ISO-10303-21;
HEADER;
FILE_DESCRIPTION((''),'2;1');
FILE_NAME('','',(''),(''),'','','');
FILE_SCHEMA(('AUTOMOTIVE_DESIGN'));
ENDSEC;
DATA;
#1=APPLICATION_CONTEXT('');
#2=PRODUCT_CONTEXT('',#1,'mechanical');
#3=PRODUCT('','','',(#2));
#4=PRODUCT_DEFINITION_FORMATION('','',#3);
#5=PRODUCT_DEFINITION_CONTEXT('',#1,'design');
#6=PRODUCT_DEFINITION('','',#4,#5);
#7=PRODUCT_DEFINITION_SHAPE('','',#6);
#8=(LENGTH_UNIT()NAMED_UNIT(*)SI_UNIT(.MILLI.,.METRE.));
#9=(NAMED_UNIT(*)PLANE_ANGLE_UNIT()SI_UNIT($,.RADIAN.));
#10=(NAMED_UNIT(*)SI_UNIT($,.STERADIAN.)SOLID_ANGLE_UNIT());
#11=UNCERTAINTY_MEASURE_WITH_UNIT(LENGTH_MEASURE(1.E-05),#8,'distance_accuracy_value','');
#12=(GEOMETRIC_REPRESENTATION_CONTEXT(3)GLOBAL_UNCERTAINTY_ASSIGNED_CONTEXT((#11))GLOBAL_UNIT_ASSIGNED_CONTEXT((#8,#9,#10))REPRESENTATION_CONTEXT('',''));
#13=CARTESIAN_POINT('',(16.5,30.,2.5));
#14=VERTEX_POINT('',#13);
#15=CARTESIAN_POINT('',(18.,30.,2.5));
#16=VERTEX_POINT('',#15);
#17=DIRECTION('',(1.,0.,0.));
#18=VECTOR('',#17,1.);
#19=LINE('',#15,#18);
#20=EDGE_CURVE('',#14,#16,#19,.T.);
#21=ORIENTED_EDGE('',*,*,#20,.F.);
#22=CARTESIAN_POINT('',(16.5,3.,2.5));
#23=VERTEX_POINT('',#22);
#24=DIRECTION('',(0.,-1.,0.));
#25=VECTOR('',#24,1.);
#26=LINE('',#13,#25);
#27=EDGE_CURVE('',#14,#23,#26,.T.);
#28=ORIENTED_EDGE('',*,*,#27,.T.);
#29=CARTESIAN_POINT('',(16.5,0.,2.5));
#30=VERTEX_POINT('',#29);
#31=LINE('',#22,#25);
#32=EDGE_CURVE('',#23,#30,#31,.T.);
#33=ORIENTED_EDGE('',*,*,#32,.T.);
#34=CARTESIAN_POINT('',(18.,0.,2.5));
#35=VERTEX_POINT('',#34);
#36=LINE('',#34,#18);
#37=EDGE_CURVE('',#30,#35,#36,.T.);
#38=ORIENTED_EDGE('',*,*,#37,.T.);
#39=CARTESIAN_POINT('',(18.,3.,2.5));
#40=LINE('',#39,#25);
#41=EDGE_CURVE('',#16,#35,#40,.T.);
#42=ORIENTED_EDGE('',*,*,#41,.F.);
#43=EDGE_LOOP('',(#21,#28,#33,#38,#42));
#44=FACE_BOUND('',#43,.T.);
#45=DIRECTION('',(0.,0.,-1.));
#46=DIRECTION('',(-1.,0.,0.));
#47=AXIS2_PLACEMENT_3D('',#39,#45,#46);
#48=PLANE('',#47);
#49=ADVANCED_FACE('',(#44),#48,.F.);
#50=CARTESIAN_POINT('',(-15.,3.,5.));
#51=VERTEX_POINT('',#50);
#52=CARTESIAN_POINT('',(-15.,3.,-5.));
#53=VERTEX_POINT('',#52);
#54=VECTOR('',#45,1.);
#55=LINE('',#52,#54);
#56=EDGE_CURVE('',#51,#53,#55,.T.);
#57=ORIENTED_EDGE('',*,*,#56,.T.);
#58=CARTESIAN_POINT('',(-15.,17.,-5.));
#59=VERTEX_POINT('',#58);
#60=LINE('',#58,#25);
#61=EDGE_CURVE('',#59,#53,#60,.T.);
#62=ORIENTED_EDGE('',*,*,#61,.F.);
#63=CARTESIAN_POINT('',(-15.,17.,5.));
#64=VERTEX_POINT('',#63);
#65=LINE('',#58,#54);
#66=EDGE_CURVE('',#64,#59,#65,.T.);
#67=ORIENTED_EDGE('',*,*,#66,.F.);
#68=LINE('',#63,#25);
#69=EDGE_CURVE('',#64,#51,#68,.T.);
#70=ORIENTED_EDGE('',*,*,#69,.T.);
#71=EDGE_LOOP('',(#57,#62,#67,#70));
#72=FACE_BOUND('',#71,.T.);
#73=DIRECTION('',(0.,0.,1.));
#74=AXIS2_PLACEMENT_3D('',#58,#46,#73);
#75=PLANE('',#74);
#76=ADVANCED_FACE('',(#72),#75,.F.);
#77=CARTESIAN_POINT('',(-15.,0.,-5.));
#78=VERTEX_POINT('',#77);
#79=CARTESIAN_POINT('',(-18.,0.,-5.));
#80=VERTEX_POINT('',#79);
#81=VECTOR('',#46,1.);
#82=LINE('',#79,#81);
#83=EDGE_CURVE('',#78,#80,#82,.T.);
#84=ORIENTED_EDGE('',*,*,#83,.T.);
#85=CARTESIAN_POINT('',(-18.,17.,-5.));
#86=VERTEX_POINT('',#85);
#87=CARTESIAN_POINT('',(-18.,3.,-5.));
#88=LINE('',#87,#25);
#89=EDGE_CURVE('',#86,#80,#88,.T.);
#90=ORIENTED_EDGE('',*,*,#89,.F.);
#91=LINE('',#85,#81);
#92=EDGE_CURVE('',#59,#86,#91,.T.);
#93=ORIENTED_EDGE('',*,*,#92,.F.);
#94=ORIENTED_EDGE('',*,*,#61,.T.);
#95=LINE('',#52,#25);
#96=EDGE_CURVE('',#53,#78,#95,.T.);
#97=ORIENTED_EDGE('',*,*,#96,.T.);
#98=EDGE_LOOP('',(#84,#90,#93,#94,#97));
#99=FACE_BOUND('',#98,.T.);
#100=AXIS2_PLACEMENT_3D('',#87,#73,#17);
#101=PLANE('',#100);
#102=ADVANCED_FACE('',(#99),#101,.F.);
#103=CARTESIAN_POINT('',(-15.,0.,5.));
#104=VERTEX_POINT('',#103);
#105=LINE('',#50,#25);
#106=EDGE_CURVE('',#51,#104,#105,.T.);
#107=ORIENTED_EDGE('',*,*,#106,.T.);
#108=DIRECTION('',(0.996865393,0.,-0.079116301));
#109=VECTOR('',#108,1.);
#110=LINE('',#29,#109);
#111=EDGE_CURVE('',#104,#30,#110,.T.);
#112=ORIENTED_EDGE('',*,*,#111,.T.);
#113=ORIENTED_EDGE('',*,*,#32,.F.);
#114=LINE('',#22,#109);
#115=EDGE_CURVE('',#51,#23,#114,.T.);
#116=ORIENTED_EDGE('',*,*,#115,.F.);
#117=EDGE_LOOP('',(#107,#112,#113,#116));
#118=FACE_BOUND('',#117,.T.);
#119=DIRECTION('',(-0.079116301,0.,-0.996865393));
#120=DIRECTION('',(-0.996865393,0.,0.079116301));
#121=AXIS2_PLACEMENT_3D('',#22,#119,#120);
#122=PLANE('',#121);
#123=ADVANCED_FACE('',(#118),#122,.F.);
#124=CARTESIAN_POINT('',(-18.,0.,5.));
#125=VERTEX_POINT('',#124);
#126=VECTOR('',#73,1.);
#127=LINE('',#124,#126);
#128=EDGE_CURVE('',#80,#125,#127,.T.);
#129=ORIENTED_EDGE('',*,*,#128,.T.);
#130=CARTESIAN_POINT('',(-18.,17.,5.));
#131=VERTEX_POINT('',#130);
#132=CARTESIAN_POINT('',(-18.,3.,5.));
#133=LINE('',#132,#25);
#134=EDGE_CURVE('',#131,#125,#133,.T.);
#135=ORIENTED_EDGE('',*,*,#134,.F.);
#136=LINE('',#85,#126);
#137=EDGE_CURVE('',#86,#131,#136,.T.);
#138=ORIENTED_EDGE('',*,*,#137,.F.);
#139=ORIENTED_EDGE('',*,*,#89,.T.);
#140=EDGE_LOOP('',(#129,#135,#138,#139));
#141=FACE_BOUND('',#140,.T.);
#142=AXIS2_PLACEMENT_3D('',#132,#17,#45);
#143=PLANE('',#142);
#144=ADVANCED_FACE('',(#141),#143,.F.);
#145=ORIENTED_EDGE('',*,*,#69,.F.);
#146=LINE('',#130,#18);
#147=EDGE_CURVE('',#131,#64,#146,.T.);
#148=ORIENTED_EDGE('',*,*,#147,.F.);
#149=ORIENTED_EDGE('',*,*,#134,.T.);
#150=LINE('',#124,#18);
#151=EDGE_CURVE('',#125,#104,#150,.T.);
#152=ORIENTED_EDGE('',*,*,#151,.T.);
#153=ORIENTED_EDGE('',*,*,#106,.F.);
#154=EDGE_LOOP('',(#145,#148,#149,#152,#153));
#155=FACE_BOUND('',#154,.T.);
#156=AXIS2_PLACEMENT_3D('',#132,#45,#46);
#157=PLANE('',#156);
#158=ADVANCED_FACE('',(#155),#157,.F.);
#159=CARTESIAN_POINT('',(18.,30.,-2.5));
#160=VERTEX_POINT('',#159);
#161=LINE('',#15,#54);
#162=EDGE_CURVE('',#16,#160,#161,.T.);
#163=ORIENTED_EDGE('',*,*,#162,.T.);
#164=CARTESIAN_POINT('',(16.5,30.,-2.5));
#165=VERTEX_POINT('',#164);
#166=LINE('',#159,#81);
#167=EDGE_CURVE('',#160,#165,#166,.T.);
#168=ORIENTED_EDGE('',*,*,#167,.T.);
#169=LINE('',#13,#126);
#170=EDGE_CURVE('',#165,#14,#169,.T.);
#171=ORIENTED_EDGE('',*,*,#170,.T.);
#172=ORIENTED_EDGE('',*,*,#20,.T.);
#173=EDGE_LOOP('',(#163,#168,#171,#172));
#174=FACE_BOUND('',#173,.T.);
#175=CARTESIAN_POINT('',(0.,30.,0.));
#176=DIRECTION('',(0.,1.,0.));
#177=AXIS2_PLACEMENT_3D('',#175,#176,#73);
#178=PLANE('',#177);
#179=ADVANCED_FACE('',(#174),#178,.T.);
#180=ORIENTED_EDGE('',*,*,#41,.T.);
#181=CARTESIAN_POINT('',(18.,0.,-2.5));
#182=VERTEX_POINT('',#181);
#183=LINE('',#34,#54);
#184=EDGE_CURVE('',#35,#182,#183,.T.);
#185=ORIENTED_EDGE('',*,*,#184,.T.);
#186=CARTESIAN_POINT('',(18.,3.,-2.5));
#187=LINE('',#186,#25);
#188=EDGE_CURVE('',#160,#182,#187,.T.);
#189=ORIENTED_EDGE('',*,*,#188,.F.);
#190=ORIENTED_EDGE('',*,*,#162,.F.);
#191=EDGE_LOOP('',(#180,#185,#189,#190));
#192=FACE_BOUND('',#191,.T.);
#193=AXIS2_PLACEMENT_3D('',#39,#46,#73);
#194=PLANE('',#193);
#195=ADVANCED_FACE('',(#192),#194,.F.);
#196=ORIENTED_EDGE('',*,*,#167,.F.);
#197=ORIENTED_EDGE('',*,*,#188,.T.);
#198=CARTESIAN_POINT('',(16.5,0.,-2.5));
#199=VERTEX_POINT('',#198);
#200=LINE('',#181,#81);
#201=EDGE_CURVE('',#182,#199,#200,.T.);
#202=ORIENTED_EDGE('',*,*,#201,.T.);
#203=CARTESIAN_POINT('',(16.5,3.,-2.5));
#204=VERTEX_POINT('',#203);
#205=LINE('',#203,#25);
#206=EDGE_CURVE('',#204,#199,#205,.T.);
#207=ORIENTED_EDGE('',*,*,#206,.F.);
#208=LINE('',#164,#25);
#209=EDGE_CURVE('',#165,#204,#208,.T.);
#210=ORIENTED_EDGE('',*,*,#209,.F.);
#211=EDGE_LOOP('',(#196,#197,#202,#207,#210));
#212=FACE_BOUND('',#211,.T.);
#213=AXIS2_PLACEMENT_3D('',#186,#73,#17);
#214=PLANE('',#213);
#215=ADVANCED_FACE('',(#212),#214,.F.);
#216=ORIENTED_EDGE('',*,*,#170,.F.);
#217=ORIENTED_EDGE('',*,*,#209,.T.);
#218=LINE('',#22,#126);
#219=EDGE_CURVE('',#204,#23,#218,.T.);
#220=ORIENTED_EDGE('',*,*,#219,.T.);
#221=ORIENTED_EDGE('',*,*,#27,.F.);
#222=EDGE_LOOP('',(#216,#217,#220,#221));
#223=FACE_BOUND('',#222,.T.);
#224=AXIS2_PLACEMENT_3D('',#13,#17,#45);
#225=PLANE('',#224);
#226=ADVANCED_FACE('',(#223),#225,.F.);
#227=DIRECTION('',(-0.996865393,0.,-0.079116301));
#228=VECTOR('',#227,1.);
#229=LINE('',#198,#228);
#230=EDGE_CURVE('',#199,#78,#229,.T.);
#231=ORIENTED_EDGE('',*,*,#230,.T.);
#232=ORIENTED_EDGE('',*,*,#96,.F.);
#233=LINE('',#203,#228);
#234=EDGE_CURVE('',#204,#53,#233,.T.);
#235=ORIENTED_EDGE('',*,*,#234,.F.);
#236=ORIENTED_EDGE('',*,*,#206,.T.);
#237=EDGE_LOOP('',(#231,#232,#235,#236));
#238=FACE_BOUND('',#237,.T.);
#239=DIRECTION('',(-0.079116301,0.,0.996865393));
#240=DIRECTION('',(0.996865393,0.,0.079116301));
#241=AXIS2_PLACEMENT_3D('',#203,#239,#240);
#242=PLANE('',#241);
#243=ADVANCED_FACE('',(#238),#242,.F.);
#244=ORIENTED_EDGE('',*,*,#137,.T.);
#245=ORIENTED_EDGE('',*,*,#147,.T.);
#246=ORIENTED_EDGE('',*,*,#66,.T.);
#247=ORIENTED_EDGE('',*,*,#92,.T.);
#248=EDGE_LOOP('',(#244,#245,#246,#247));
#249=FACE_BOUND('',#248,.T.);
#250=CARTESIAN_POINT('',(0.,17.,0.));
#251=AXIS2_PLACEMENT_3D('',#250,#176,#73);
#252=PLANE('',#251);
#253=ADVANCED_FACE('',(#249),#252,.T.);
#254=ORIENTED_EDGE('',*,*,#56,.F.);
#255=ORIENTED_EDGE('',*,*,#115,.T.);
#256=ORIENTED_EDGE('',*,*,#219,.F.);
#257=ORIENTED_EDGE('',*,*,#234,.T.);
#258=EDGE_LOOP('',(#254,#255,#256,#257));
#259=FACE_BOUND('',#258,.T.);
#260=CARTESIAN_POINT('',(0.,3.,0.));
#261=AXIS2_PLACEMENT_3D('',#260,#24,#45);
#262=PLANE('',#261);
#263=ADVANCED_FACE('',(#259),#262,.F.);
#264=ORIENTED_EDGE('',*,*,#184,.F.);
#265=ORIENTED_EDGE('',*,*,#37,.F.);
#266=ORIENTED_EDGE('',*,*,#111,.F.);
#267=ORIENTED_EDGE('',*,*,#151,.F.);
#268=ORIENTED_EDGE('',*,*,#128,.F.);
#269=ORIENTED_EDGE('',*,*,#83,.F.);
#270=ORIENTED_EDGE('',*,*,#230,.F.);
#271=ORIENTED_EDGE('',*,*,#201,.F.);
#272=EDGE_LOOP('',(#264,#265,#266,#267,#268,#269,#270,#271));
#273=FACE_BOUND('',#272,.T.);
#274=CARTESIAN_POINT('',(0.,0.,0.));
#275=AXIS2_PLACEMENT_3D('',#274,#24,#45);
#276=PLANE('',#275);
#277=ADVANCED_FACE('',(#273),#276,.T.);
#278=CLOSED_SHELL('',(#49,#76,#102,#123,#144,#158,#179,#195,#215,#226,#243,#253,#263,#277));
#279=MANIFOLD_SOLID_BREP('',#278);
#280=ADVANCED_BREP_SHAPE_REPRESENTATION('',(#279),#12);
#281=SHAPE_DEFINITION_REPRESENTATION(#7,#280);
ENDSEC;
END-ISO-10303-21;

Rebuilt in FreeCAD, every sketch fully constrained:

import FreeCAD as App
import Part
import Sketcher
Q = App.Units.Quantity


def add_polygon(sketch, points):
    """Adds a closed chain of lines whose ends are joined by coincident constraints."""
    first, n = sketch.GeometryCount, len(points)
    for a, b in zip(points, points[1:] + points[:1]):
        sketch.addGeometry(Part.LineSegment(App.Vector(*a, 0), App.Vector(*b, 0)), False)
    for i in range(n):
        sketch.addConstraint(Sketcher.Constraint("Coincident", first + i, 2, first + (i + 1) % n, 1))

doc = App.newDocument("Part")
body = doc.addObject("PartDesign::Body", "Body")

sketch1 = body.newObject("Sketcher::SketchObject", "Sketch")
sketch1.AttachmentSupport = (doc.getObject("XZ_Plane"), [""])
sketch1.MapMode = "FlatFace"
add_polygon(sketch1, [(18, -2.5), (16.5, -2.5), (-15, -5), (-18, -5), (-18, 5), (-15, 5), (16.5, 2.5), (18, 2.5)])
sketch1.addConstraint([
    Sketcher.Constraint("Horizontal", 0),
    Sketcher.Constraint("Horizontal", 2),
    Sketcher.Constraint("Vertical", 3),
    Sketcher.Constraint("Horizontal", 4),
    Sketcher.Constraint("Horizontal", 6),
    Sketcher.Constraint("Vertical", 7),
    Sketcher.Constraint("Symmetric", 1, 2, 4, 2, -1),
    Sketcher.Constraint("Symmetric", 0, 2, 5, 2, -1),
    Sketcher.Constraint("DistanceX", 2, 2, 2, 1, Q("3 mm")),
    Sketcher.Constraint("DistanceY", 3, 1, 3, 2, Q("10 mm")),
    Sketcher.Constraint("DistanceY", 7, 2, 7, 1, Q("5 mm")),
    Sketcher.Constraint("DistanceX", 0, 2, 0, 1, Q("1.5 mm")),
    Sketcher.Constraint("DistanceX", 1, 2, -1, 1, Q("15 mm")),
    Sketcher.Constraint("DistanceX", -1, 1, 6, 2, Q("18 mm")),
])
pad1 = body.newObject("PartDesign::Pad", "Pad")
pad1.Profile = sketch1
pad1.Length = 3
pad1.Reversed = True

sketch2 = body.newObject("Sketcher::SketchObject", "Sketch001")
sketch2.AttachmentSupport = (doc.getObject("XZ_Plane"), [""])
sketch2.MapMode = "FlatFace"
sketch2.AttachmentOffset = App.Placement(App.Vector(0, 0, -3), App.Rotation())
add_polygon(sketch2, [(-18, -5), (-18, 5), (-15, 5), (-15, -5)])
sketch2.addConstraint([
    Sketcher.Constraint("Vertical", 0),
    Sketcher.Constraint("Horizontal", 1),
    Sketcher.Constraint("Vertical", 2),
    Sketcher.Constraint("Horizontal", 3),
    Sketcher.Constraint("DistanceX", 1, 1, 1, 2, Q("3 mm")),
    Sketcher.Constraint("DistanceY", 0, 1, 0, 2, Q("10 mm")),
    Sketcher.Constraint("DistanceX", 0, 2, -1, 1, Q("18 mm")),
    Sketcher.Constraint("DistanceY", -1, 1, 0, 2, Q("5 mm")),
])
pad2 = body.newObject("PartDesign::Pad", "Pad001")
pad2.Profile = sketch2
pad2.Length = 14
pad2.Reversed = True

sketch3 = body.newObject("Sketcher::SketchObject", "Sketch002")
sketch3.AttachmentSupport = (doc.getObject("XZ_Plane"), [""])
sketch3.MapMode = "FlatFace"
sketch3.AttachmentOffset = App.Placement(App.Vector(0, 0, -3), App.Rotation())
add_polygon(sketch3, [(16.5, -2.5), (16.5, 2.5), (18, 2.5), (18, -2.5)])
sketch3.addConstraint([
    Sketcher.Constraint("Vertical", 0),
    Sketcher.Constraint("Horizontal", 1),
    Sketcher.Constraint("Vertical", 2),
    Sketcher.Constraint("Horizontal", 3),
    Sketcher.Constraint("DistanceY", 0, 1, 0, 2, Q("5 mm")),
    Sketcher.Constraint("DistanceX", 1, 1, 1, 2, Q("1.5 mm")),
    Sketcher.Constraint("DistanceX", -1, 1, 1, 2, Q("18 mm")),
    Sketcher.Constraint("DistanceY", -1, 1, 0, 2, Q("2.5 mm")),
])
pad3 = body.newObject("PartDesign::Pad", "Pad002")
pad3.Profile = sketch3
pad3.Length = 27
pad3.Reversed = True

doc.recompute()
